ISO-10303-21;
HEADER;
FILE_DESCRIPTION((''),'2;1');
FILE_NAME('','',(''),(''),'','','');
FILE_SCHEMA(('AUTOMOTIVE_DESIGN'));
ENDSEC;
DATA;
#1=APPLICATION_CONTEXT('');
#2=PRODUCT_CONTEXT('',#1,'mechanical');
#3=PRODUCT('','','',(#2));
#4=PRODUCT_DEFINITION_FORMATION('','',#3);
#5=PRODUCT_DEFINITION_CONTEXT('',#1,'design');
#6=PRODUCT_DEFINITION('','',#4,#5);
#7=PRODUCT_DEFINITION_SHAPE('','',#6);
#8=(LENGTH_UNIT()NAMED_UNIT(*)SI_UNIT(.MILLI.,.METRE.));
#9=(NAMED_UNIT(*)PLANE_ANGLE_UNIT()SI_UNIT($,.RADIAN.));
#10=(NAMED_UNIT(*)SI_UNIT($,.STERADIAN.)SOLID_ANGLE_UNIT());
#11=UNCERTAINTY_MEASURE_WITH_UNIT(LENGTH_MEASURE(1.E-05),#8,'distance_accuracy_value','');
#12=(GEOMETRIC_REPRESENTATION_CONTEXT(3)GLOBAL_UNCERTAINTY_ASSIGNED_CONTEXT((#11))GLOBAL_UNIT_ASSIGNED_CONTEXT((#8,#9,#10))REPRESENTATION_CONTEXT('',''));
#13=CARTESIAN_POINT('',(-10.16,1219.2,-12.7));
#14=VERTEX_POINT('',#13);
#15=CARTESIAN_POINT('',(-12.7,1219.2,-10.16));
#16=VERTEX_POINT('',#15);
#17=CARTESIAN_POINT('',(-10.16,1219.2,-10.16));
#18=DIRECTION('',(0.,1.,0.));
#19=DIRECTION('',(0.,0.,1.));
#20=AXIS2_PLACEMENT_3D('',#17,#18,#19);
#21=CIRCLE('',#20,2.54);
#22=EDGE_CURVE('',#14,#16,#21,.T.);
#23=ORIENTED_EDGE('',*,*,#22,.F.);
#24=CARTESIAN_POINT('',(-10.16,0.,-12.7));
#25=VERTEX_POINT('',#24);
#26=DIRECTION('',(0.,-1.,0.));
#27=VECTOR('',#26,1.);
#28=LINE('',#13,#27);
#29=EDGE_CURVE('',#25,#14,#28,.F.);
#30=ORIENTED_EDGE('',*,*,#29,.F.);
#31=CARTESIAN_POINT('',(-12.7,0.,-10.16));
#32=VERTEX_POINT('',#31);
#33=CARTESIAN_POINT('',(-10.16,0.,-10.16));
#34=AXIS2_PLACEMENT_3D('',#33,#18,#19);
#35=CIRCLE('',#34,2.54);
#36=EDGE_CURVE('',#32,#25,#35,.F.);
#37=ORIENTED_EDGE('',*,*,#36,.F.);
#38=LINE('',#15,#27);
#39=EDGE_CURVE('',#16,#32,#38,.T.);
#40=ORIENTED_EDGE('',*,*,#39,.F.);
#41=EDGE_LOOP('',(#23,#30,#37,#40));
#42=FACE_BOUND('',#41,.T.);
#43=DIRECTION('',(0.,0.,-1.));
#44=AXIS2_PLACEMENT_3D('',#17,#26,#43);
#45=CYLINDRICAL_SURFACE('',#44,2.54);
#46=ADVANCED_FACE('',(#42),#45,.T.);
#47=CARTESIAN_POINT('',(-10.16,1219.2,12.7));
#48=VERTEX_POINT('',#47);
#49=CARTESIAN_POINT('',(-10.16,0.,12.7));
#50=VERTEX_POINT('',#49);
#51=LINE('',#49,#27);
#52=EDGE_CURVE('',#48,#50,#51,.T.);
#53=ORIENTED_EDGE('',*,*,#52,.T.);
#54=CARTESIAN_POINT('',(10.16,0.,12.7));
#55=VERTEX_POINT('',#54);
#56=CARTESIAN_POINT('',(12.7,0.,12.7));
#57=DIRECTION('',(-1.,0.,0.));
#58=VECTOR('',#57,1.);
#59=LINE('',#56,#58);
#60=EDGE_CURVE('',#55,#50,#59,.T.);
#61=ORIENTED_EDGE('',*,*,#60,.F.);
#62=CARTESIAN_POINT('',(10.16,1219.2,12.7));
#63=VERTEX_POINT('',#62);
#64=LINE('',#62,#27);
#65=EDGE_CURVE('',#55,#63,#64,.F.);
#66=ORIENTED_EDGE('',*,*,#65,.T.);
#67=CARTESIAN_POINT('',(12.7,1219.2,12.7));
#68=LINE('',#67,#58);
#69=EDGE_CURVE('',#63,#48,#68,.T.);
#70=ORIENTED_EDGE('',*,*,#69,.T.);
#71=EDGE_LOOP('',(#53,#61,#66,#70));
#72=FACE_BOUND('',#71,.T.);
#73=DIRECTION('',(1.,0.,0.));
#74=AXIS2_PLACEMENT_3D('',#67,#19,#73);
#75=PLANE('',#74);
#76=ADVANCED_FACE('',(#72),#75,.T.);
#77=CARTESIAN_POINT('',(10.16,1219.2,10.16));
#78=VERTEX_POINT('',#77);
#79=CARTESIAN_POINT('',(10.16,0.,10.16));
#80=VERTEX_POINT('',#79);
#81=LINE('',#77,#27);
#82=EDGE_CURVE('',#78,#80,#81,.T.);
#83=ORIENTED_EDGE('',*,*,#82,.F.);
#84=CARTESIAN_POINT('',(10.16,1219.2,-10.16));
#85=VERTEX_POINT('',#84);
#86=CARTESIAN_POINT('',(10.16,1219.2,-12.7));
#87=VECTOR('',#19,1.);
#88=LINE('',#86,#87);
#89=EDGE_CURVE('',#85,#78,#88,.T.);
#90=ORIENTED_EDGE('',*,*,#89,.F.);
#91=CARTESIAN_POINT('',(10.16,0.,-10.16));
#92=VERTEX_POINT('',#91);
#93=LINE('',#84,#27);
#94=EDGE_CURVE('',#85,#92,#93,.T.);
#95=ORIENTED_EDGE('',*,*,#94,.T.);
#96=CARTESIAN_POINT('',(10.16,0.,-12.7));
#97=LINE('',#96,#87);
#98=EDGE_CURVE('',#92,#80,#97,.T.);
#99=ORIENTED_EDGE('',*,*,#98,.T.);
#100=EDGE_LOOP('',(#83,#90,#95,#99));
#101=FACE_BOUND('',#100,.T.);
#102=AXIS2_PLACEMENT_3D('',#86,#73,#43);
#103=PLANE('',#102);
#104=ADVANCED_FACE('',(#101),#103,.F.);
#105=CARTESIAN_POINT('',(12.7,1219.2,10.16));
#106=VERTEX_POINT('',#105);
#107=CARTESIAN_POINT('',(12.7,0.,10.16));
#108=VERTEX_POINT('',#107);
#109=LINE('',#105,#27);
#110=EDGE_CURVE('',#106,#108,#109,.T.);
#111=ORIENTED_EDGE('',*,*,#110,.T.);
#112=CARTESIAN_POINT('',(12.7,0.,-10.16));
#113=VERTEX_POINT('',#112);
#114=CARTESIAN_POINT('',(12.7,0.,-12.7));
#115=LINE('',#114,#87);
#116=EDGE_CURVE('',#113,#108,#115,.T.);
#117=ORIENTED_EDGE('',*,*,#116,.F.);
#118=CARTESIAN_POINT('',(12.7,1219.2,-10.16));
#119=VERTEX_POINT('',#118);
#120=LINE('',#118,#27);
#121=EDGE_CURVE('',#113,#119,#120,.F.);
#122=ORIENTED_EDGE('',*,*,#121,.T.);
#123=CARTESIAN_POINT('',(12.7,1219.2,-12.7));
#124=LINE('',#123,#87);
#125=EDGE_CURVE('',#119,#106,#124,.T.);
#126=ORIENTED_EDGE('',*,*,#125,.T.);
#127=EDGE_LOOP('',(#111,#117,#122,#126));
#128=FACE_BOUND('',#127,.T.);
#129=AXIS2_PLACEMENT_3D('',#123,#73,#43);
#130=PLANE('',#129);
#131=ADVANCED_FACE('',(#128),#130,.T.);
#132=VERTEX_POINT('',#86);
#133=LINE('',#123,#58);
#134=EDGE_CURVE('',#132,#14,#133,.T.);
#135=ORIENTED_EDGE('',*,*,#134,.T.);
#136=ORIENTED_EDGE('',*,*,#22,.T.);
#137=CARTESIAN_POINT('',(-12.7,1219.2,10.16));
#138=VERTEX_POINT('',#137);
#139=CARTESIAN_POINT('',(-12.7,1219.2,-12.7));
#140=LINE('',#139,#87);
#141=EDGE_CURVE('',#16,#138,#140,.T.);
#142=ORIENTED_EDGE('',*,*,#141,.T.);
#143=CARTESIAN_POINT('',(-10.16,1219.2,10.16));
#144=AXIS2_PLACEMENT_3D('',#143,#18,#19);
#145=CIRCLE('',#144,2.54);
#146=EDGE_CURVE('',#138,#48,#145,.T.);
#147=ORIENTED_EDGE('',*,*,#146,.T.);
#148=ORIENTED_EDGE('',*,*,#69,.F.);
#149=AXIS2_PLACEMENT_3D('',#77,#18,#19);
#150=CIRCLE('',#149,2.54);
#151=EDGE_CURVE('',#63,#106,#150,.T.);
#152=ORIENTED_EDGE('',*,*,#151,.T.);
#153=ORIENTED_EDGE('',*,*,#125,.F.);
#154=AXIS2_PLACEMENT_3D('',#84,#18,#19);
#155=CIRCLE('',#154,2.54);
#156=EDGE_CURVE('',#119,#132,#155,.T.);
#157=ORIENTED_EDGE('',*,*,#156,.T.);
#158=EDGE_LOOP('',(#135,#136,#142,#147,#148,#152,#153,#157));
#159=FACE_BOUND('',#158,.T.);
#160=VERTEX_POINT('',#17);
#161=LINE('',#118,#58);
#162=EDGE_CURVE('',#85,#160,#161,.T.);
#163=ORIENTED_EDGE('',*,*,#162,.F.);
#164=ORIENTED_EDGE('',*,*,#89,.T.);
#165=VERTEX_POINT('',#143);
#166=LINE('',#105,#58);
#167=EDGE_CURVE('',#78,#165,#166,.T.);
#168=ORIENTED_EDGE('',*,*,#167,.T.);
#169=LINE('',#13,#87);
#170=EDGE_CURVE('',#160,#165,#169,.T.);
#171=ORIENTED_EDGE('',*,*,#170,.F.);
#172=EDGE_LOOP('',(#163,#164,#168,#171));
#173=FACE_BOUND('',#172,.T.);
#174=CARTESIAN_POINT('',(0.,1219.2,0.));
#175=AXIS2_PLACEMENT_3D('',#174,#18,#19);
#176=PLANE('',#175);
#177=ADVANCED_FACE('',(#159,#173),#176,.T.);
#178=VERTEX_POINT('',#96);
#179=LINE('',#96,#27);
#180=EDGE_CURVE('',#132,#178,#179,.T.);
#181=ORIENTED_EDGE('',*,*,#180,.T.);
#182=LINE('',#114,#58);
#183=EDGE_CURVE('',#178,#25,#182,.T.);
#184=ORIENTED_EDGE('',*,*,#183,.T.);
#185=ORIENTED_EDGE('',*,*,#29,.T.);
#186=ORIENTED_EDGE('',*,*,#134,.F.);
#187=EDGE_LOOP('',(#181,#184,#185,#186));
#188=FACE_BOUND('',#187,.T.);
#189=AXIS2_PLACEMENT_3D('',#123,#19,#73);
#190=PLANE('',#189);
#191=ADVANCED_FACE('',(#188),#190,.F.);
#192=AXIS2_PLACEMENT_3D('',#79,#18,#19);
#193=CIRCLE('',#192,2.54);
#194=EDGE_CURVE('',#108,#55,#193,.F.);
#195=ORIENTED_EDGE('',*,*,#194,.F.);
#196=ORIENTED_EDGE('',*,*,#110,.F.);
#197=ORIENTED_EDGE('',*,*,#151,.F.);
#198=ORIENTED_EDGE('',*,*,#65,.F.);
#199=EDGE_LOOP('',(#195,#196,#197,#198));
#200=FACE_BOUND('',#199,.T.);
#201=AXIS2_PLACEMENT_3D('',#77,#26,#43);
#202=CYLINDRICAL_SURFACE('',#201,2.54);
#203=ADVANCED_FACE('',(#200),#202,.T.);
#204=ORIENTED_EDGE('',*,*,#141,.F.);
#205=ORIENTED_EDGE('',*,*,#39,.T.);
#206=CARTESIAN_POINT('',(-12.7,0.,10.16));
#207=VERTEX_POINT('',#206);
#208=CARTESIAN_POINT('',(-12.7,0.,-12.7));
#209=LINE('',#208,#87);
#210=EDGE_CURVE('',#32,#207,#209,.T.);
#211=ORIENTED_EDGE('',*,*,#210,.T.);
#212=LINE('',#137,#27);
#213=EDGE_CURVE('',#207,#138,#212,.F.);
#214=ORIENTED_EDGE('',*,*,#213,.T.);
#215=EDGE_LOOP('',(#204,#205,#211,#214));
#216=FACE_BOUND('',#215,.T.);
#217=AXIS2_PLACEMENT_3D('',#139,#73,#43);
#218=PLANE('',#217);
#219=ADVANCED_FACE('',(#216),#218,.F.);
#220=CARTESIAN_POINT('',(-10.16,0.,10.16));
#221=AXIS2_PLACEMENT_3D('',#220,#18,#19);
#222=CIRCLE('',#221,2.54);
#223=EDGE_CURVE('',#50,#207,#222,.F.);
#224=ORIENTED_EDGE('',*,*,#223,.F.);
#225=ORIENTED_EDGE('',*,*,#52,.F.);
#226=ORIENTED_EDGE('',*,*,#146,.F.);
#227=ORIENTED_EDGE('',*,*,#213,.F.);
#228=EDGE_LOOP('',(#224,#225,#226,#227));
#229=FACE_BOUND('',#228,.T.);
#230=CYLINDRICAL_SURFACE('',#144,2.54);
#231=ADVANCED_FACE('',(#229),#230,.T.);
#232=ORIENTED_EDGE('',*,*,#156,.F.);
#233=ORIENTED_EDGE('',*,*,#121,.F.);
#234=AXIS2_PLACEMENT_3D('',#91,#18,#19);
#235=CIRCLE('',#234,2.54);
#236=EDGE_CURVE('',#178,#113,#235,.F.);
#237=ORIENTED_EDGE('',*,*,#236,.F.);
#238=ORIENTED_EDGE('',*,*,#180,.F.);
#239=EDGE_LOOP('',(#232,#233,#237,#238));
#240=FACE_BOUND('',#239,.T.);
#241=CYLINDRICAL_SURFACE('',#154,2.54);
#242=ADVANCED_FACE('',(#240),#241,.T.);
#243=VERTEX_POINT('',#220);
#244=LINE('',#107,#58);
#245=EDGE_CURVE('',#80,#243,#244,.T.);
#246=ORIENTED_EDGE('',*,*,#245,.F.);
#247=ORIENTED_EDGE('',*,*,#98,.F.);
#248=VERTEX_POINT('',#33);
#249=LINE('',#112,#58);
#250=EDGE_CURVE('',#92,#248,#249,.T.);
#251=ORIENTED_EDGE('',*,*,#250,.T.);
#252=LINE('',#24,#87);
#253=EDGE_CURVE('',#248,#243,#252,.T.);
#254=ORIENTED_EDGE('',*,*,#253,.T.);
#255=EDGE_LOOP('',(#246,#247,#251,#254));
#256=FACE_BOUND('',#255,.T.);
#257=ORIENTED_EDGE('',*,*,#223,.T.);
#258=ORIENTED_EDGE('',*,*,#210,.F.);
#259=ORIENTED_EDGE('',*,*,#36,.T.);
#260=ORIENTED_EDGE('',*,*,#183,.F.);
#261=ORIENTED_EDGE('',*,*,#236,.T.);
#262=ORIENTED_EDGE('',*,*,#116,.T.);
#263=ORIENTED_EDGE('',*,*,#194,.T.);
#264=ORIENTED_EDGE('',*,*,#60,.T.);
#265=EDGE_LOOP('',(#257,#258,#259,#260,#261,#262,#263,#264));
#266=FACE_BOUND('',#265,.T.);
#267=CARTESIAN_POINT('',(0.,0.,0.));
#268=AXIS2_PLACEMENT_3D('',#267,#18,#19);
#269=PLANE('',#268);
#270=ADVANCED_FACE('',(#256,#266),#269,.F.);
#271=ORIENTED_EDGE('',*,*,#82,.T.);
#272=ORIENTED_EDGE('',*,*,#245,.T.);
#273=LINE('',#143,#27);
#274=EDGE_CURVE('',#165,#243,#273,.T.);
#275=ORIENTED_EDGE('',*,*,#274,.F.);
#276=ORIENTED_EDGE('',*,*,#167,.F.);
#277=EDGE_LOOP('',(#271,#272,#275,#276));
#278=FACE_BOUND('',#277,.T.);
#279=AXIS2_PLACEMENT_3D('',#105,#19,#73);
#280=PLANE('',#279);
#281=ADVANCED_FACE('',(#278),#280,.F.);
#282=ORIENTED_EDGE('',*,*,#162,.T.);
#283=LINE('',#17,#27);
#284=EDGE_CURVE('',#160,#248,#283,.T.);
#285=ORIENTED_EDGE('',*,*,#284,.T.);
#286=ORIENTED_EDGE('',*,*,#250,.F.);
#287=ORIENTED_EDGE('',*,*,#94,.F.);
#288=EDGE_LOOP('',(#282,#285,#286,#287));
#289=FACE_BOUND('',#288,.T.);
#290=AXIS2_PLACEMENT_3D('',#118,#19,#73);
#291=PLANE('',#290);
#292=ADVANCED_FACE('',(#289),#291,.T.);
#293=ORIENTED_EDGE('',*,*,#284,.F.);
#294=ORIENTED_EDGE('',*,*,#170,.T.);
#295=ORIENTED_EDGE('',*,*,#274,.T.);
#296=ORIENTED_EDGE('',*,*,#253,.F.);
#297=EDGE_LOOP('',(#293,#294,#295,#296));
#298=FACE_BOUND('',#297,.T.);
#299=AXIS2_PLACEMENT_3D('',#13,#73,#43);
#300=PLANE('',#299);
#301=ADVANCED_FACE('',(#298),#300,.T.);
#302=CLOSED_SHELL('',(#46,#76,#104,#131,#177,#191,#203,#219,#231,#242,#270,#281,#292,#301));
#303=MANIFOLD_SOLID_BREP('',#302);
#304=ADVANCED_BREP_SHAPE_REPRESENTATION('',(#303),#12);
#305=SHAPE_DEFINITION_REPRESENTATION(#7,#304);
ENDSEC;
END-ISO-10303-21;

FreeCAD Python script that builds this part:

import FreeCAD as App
import Part
import Sketcher
Q = App.Units.Quantity


def edges_at(feature, points):
    """Names of the edges that pass closest to the given points."""
    edges = feature.Shape.Edges
    near = lambda p: min(range(len(edges)), key=lambda i: edges[i].distToShape(Part.Vertex(*p))[0])
    return sorted({f"Edge{near(p) + 1}" for p in points})


def faces_at(feature, points):
    """Names of the faces that lie closest to the given points."""
    faces = feature.Shape.Faces
    near = lambda p: min(range(len(faces)), key=lambda i: faces[i].distToShape(Part.Vertex(*p))[0])
    return sorted({f"Face{near(p) + 1}" for p in points})

doc = App.newDocument("Part")
body = doc.addObject("PartDesign::Body", "Body")

sketch1 = body.newObject("Sketcher::SketchObject", "Sketch")
sketch1.AttachmentSupport = (doc.getObject("XZ_Plane"), [""])
sketch1.MapMode = "FlatFace"
sketch1.addGeometry([
    Part.LineSegment(App.Vector(-12.7, -12.7, 0), App.Vector(-12.7, 12.7, 0)),
    Part.LineSegment(App.Vector(-12.7, 12.7, 0), App.Vector(12.7, 12.7, 0)),
    Part.LineSegment(App.Vector(12.7, 12.7, 0), App.Vector(12.7, -12.7, 0)),
    Part.LineSegment(App.Vector(12.7, -12.7, 0), App.Vector(-12.7, -12.7, 0)),
], False)
sketch1.addConstraint([
    Sketcher.Constraint("Coincident", 0, 2, 1, 1),
    Sketcher.Constraint("Coincident", 1, 2, 2, 1),
    Sketcher.Constraint("Coincident", 2, 2, 3, 1),
    Sketcher.Constraint("Coincident", 3, 2, 0, 1),
    Sketcher.Constraint("Vertical", 0),
    Sketcher.Constraint("Horizontal", 1),
    Sketcher.Constraint("Vertical", 2),
    Sketcher.Constraint("Horizontal", 3),
    Sketcher.Constraint("Symmetric", 0, 2, 2, 2, -1, 1),
    Sketcher.Constraint("Equal", 3, 0),
    Sketcher.Constraint("DistanceX", 1, 1, 1, 2, Q("1 in")),
])
pad1 = body.newObject("PartDesign::Pad", "Pad")
pad1.Profile = sketch1
pad1.Length = Q("48 in")
pad1.Reversed = True
doc.recompute()

thickness = body.newObject("PartDesign::Thickness", "Thickness")
thickness.Base = (pad1, faces_at(pad1, [(0, 1219.2, 0), (0, 0, 0)]))
thickness.Value = Q("0.1 in")
thickness.Reversed = True
thickness.Join = "Intersection"
doc.recompute()

fillet = body.newObject("PartDesign::Fillet", "Fillet")
fillet.Base = (thickness, edges_at(thickness, [
    (12.7, 609.6, -12.7),
    (12.7, 609.6, 12.7),
    (-12.7, 609.6, 12.7),
    (-12.7, 609.6, -12.7),
]))
fillet.Radius = Q("0.1 in")

doc.recompute()
